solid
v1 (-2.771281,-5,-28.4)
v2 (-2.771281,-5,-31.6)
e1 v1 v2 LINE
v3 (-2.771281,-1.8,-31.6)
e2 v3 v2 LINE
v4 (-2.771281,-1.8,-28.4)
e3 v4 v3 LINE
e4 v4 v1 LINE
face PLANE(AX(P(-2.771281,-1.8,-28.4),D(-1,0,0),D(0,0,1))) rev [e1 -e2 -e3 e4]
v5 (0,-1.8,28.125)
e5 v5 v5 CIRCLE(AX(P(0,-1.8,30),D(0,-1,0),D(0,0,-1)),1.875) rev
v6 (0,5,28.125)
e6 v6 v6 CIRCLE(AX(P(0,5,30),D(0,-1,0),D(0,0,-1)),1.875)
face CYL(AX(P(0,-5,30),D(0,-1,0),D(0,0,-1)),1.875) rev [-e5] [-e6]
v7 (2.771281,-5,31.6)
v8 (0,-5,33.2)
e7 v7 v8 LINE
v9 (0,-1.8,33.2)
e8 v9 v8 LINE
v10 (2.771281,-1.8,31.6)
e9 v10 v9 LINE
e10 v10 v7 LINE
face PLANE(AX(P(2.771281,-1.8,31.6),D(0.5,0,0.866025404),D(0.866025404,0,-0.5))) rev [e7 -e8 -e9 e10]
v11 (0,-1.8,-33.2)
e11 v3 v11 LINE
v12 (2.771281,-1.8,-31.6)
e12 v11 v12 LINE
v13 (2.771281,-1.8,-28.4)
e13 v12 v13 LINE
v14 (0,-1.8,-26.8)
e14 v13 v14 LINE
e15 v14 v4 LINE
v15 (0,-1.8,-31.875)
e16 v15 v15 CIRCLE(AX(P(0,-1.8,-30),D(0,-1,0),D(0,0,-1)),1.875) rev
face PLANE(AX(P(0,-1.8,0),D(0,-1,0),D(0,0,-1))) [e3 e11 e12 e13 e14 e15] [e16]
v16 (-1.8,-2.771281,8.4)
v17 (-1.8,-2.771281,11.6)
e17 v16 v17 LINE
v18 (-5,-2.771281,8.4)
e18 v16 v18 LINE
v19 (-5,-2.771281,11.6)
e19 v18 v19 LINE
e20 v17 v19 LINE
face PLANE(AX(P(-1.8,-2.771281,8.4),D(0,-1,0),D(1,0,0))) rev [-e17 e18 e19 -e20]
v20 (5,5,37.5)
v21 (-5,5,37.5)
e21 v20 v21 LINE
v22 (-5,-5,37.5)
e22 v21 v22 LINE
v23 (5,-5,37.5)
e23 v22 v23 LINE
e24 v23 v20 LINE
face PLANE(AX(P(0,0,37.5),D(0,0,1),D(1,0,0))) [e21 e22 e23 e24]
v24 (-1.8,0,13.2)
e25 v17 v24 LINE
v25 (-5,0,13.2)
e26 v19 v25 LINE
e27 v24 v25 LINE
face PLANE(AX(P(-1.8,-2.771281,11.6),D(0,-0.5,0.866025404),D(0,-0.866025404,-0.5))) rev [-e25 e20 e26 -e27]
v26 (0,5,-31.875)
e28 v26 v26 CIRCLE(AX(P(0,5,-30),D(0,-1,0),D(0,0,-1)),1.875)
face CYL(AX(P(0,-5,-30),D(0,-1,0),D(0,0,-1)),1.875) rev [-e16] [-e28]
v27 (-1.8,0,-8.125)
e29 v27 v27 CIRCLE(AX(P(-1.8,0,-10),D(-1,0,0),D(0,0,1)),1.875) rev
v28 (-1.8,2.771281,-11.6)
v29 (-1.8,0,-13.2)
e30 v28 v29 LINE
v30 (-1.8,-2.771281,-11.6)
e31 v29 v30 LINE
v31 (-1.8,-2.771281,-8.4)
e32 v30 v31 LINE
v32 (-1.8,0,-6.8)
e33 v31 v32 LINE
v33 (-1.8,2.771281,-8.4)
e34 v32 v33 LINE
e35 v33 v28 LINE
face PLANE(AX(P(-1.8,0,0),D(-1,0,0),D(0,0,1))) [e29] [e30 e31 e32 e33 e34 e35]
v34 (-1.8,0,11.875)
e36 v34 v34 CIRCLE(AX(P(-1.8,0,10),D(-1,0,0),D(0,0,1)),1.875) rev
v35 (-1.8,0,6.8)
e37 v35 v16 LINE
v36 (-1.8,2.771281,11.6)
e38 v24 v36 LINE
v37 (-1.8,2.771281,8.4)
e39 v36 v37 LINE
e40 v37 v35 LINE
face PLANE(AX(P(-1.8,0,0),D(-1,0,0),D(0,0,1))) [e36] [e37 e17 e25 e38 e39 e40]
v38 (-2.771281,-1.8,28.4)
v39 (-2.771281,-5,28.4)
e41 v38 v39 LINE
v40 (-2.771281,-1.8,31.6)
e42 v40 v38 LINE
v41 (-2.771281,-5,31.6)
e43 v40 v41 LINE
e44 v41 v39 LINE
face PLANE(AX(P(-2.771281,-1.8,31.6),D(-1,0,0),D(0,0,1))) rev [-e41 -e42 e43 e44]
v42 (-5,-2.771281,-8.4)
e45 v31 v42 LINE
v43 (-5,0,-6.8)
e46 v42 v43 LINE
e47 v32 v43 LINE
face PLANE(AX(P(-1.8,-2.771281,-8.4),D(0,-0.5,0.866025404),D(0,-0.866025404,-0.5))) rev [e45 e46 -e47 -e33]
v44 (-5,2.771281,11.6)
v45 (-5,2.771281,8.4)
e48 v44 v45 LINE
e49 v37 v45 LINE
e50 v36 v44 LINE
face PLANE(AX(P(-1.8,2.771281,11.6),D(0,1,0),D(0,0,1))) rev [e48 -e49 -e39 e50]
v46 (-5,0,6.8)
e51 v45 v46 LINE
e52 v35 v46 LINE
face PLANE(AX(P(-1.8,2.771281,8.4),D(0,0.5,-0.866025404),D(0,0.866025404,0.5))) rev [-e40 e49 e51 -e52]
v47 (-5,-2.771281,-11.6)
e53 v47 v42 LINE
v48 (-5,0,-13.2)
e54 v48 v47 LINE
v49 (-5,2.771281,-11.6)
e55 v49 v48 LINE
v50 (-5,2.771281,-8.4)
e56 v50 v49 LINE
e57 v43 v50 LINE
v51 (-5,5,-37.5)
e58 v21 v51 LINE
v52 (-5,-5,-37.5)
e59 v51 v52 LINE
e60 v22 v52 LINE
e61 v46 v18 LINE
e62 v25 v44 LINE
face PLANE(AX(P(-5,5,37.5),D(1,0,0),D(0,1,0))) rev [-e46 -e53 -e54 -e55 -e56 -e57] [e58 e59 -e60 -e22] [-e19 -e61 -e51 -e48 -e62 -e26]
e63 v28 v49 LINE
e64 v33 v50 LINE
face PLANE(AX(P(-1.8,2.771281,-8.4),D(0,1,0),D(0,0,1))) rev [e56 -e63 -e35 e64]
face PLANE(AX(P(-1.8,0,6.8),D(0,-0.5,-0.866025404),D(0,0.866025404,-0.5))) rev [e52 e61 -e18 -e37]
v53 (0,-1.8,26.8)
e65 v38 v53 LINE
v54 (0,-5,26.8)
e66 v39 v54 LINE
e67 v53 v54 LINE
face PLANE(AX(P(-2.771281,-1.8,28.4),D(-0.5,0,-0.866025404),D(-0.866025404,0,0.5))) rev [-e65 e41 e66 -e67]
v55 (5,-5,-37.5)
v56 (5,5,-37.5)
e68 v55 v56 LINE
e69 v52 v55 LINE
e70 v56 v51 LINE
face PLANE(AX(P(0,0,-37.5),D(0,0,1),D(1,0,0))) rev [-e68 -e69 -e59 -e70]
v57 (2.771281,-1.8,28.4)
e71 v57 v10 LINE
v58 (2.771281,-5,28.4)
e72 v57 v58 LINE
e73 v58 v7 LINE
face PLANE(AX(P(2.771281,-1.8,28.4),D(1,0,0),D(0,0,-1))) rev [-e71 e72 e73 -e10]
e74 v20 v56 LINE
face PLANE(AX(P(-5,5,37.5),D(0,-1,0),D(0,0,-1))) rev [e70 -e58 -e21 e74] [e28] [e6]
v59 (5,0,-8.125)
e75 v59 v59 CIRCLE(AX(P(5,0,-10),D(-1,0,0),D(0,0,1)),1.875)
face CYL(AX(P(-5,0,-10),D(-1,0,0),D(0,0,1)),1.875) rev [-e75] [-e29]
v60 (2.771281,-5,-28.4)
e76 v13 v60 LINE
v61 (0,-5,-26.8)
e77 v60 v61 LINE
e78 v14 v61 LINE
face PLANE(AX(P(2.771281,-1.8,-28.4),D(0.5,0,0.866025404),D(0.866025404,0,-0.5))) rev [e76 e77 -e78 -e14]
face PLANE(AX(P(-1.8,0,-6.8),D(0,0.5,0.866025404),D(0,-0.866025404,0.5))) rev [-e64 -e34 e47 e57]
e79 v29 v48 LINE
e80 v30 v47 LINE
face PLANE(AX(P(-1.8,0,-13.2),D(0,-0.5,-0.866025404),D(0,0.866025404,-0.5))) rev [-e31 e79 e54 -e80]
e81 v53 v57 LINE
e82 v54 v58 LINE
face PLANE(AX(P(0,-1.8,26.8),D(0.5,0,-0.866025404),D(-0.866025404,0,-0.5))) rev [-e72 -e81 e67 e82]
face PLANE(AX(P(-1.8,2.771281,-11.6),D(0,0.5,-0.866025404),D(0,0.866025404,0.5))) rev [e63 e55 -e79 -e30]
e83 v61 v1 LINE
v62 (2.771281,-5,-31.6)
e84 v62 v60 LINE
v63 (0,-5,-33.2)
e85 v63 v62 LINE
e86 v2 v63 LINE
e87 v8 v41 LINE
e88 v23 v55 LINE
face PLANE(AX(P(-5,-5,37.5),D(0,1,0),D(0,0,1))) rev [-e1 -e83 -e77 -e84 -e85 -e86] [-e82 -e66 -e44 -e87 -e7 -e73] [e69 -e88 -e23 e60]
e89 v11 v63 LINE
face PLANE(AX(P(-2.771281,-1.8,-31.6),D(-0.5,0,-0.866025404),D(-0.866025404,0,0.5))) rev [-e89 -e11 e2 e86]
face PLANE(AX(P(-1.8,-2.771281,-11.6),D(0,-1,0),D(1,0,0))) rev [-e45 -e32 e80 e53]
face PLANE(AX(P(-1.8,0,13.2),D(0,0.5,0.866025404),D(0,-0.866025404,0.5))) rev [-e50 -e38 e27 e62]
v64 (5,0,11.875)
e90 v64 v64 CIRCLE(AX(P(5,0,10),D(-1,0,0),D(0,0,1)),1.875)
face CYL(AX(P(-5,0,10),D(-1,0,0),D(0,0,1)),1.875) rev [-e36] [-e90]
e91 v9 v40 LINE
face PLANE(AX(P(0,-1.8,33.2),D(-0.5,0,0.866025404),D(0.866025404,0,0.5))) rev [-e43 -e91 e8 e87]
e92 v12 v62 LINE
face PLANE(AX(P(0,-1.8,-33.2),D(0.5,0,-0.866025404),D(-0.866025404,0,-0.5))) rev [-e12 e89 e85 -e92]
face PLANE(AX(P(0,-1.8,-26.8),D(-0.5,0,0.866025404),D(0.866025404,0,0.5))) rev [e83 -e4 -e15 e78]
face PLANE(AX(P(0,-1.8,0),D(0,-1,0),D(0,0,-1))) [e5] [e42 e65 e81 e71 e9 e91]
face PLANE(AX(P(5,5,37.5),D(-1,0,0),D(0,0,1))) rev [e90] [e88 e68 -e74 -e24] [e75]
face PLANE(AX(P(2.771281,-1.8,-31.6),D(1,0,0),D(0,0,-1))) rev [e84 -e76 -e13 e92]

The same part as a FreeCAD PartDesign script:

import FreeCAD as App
import Part
import Sketcher
Q = App.Units.Quantity


def add_polygon(sketch, points):
    """Adds a closed chain of lines whose ends are joined by coincident constraints."""
    first, n = sketch.GeometryCount, len(points)
    for a, b in zip(points, points[1:] + points[:1]):
        sketch.addGeometry(Part.LineSegment(App.Vector(*a, 0), App.Vector(*b, 0)), False)
    for i in range(n):
        sketch.addConstraint(Sketcher.Constraint("Coincident", first + i, 2, first + (i + 1) % n, 1))

doc = App.newDocument("Part")
params = doc.addObject("Spreadsheet::Sheet", "Params")
for row, (alias, value) in enumerate([
    ("sketch1_width", "10 mm"),
    ("pad1_length", "75 mm"),
    ("sketch2_diameter", "3.75 mm"),
    ("hole_diameter", "3.75 mm"),
    ("sketch3_diameter", "3.75 mm"),
    ("hole2_diameter", "3.75 mm"),
    ("sketch4_height", "3.2 mm"),
    ("sketch4_length", "3.2 mm"),
    ("pocket1_length", "3.2 mm"),
    ("sketch5_height", "3.2 mm"),
    ("sketch5_length", "3.2 mm"),
    ("pocket2_length", "3.2 mm"),
], start=1):
    params.set(f"A{row}", alias)
    params.set(f"B{row}", "=" + value)
    params.setAlias(f"B{row}", alias)

body = doc.addObject("PartDesign::Body", "Body")

# Sketch on XY plane
sketch1 = body.newObject("Sketcher::SketchObject", "Sketch")
sketch1.AttachmentSupport = (doc.getObject("XY_Plane"), [""])
sketch1.MapMode = "FlatFace"
add_polygon(sketch1, [(-5, 5), (-5, -5), (5, -5), (5, 5)])  # lines 0-3
sketch1.addConstraint([
    Sketcher.Constraint("Vertical", 0),
    Sketcher.Constraint("Horizontal", 1),
    Sketcher.Constraint("Vertical", 2),
    Sketcher.Constraint("Horizontal", 3),
    Sketcher.Constraint("Symmetric", 0, 2, 2, 2, -1, 1),
    Sketcher.Constraint("Equal", 3, 0),
    Sketcher.Constraint("DistanceX", 1, 1, 1, 2, 10.0),
])
sketch1.setExpression("Constraints[10]", "Params.sketch1_width")
pad1 = body.newObject("PartDesign::Pad", "Pad")
pad1.Profile = sketch1
pad1.setExpression("Length", "Params.pad1_length")
pad1.Midplane = True

# Sketch on YZ plane
sketch2 = body.newObject("Sketcher::SketchObject", "Sketch001")
sketch2.AttachmentSupport = (doc.getObject("YZ_Plane"), [""])
sketch2.MapMode = "FlatFace"
sketch2.AttachmentOffset = App.Placement(App.Vector(0, 0, -5), App.Rotation())
sketch2.addGeometry([
    Part.Circle(App.Vector(0, -10, 0), App.Vector(0, 0, 1), 1.9),
    Part.Circle(App.Vector(0, 10, 0), App.Vector(0, 0, 1), 1.9),
], False)
sketch2.addConstraint([
    Sketcher.Constraint("Equal", 0, 1),
    Sketcher.Constraint("Symmetric", 0, 3, 1, 3, -1, 1),
    Sketcher.Constraint("PointOnObject", 0, 3, -2),
    Sketcher.Constraint("Diameter", 0, 3.75),
    Sketcher.Constraint("DistanceY", 0, 3, -1, 1, 10.0),
])
sketch2.setExpression("Constraints[3]", "Params.sketch2_diameter")
doc.recompute()
hole = body.newObject("PartDesign::Hole", "Hole")
hole.Profile = sketch2
hole.ThreadType = "None"
hole.setExpression("Diameter", "Params.hole_diameter")
hole.DepthType = "ThroughAll"
hole.Reversed = True

# Sketch on XZ plane
sketch3 = body.newObject("Sketcher::SketchObject", "Sketch002")
sketch3.AttachmentSupport = (doc.getObject("XZ_Plane"), [""])
sketch3.MapMode = "FlatFace"
sketch3.AttachmentOffset = App.Placement(App.Vector(0, 0, 5), App.Rotation())
sketch3.addGeometry([
    Part.Circle(App.Vector(0, -30, 0), App.Vector(0, 0, 1), 1.9),
    Part.Circle(App.Vector(0, 30, 0), App.Vector(0, 0, 1), 1.9),
], False)
sketch3.addConstraint([
    Sketcher.Constraint("Equal", 0, 1),
    Sketcher.Constraint("Symmetric", 0, 3, 1, 3, -1, 1),
    Sketcher.Constraint("PointOnObject", 0, 3, -2),
    Sketcher.Constraint("Diameter", 0, 3.75),
    Sketcher.Constraint("DistanceY", 0, 3, -1, 1, 30.0),
])
sketch3.setExpression("Constraints[3]", "Params.sketch3_diameter")
doc.recompute()
hole2 = body.newObject("PartDesign::Hole", "Hole001")
hole2.Profile = sketch3
hole2.ThreadType = "None"
hole2.setExpression("Diameter", "Params.hole2_diameter")
hole2.DepthType = "ThroughAll"

# Sketch on XZ plane
sketch4 = body.newObject("Sketcher::SketchObject", "Sketch003")
sketch4.AttachmentSupport = (doc.getObject("XZ_Plane"), [""])
sketch4.MapMode = "FlatFace"
sketch4.AttachmentOffset = App.Placement(App.Vector(0, 0, 5), App.Rotation())
add_polygon(sketch4, [(2.8, -28.4), (0, -26.8), (-2.8, -28.4), (-2.8, -31.6), (0, -33.2), (2.8, -31.6)])  # lines 0-5
add_polygon(sketch4, [(2.8, 31.6), (0, 33.2), (-2.8, 31.6), (-2.8, 28.4), (0, 26.8), (2.8, 28.4)])  # lines 6-11
sketch4.addConstraint([
    Sketcher.Constraint("Vertical", 2),
    Sketcher.Constraint("Vertical", 5),
    Sketcher.Constraint("Vertical", 8),
    Sketcher.Constraint("Vertical", 11),
    Sketcher.Constraint("Symmetric", 3, 2, 6, 2, -1, 1),
    Sketcher.Constraint("Symmetric", 4, 2, 7, 2, -1, 1),
    Sketcher.Constraint("Symmetric", 0, 2, 9, 2, -1, 1),
    Sketcher.Constraint("Symmetric", 1, 2, 10, 2, -1, 1),
    Sketcher.Constraint("Symmetric", 2, 2, 4, 2, -2),
    Sketcher.Constraint("PointOnObject", 0, 2, -2),
    Sketcher.Constraint("PointOnObject", 3, 2, -2),
    Sketcher.Constraint("Parallel", 0, 3),
    Sketcher.Constraint("Parallel", 1, 4),
    Sketcher.Constraint("Parallel", 3, 6),
    Sketcher.Constraint("Parallel", 6, 9),
    Sketcher.Constraint("Angle", 0, Q("150 deg")),
    Sketcher.Constraint("DistanceY", 2, 2, 2, 1, 3.2),
    Sketcher.Constraint("DistanceY", 0, 2, 6, 2, 60.0),
    Sketcher.Constraint("Distance", 0, 3.2),
])
sketch4.setExpression("Constraints[28]", "Params.sketch4_height")
sketch4.setExpression("Constraints[30]", "Params.sketch4_length")
pocket1 = body.newObject("PartDesign::Pocket", "Pocket")
pocket1.Profile = sketch4
pocket1.setExpression("Length", "Params.pocket1_length")

# Sketch on YZ plane
sketch5 = body.newObject("Sketcher::SketchObject", "Sketch004")
sketch5.AttachmentSupport = (doc.getObject("YZ_Plane"), [""])
sketch5.MapMode = "FlatFace"
sketch5.AttachmentOffset = App.Placement(App.Vector(0, 0, -5), App.Rotation())
add_polygon(sketch5, [(-2.8, -8.4), (0, -6.8), (2.8, -8.4), (2.8, -11.6), (0, -13.2), (-2.8, -11.6)])  # lines 0-5
add_polygon(sketch5, [(-2.8, 11.6), (0, 13.2), (2.8, 11.6), (2.8, 8.4), (0, 6.8), (-2.8, 8.4)])  # lines 6-11
sketch5.addConstraint([
    Sketcher.Constraint("Vertical", 2),
    Sketcher.Constraint("Vertical", 5),
    Sketcher.Constraint("Vertical", 8),
    Sketcher.Constraint("Vertical", 11),
    Sketcher.Constraint("Symmetric", 3, 2, 6, 2, -1, 1),
    Sketcher.Constraint("Symmetric", 4, 2, 7, 2, -1, 1),
    Sketcher.Constraint("Symmetric", 0, 2, 9, 2, -1, 1),
    Sketcher.Constraint("Symmetric", 1, 2, 10, 2, -1, 1),
    Sketcher.Constraint("Symmetric", 2, 2, 4, 2, -2),
    Sketcher.Constraint("PointOnObject", 0, 2, -2),
    Sketcher.Constraint("PointOnObject", 3, 2, -2),
    Sketcher.Constraint("Parallel", 0, 3),
    Sketcher.Constraint("Parallel", 1, 4),
    Sketcher.Constraint("Parallel", 3, 6),
    Sketcher.Constraint("Parallel", 6, 9),
    Sketcher.Constraint("Angle", 0, Q("30 deg")),
    Sketcher.Constraint("DistanceY", 2, 2, 2, 1, 3.2),
    Sketcher.Constraint("DistanceY", 0, 2, 6, 2, 20.0),
    Sketcher.Constraint("Distance", 0, 3.2),
])
sketch5.setExpression("Constraints[28]", "Params.sketch5_height")
sketch5.setExpression("Constraints[30]", "Params.sketch5_length")
pocket2 = body.newObject("PartDesign::Pocket", "Pocket001")
pocket2.Profile = sketch5
pocket2.setExpression("Length", "Params.pocket2_length")
pocket2.Reversed = True

doc.recompute()
